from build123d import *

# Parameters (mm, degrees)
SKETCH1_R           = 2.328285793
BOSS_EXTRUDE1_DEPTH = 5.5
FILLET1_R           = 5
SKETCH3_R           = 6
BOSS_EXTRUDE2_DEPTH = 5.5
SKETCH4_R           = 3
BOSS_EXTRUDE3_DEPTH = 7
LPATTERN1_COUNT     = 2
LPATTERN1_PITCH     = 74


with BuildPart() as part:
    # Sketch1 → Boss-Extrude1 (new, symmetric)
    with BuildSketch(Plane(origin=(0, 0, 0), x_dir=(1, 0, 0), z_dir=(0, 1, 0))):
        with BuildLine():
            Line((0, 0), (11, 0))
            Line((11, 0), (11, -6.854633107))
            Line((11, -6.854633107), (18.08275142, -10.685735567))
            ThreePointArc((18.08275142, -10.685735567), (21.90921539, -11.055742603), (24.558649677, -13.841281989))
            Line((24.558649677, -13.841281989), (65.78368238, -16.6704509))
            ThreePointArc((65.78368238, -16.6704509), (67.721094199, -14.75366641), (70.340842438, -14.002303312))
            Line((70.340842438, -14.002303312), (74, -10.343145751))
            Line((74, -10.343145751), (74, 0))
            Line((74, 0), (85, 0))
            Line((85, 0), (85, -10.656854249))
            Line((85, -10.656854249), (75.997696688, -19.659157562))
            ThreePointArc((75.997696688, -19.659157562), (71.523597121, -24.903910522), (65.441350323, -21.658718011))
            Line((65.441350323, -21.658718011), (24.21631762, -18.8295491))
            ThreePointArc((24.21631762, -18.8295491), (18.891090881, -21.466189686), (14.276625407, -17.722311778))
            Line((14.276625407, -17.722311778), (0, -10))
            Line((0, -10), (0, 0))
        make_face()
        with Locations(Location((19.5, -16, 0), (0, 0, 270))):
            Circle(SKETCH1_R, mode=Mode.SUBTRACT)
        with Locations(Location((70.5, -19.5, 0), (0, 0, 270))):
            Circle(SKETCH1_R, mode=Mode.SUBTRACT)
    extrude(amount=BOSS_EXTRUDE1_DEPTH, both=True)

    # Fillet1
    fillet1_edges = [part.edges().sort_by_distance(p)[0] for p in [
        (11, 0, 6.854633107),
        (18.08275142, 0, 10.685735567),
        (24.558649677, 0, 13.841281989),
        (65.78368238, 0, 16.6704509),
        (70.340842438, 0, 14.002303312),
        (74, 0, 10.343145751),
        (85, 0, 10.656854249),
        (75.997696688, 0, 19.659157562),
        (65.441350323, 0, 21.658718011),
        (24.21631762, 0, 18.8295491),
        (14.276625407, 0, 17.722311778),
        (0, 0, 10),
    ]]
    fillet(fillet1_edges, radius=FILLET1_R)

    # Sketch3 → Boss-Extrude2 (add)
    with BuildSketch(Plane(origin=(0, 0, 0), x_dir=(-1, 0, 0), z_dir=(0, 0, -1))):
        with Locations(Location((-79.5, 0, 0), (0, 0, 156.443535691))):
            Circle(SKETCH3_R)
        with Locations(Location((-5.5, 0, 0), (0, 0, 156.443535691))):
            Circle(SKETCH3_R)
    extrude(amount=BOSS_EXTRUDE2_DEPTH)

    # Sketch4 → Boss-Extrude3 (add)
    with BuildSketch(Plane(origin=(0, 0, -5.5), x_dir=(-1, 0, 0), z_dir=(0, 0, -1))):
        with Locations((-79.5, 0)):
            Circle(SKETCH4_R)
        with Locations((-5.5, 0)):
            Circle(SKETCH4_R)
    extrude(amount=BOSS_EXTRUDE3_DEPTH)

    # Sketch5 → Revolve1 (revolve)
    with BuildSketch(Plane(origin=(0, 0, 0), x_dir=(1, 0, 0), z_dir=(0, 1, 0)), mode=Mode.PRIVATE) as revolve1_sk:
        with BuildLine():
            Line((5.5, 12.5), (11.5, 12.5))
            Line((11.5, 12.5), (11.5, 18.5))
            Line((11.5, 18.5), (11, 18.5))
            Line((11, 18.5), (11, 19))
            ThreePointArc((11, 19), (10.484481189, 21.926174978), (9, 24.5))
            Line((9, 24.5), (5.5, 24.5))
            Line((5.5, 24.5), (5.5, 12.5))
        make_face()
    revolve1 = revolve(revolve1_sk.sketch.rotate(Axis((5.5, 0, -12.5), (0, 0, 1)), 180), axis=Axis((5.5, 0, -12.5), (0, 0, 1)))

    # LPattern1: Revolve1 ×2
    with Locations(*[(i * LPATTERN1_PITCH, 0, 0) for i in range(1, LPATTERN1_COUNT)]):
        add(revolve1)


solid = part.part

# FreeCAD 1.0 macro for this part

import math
import FreeCAD as App
import Part
import Sketcher

V = App.Vector
Q = App.Units.Quantity


def edges_at(feature, points):
    """Names of the edges that pass closest to the given points."""
    edges = feature.Shape.Edges
    near = lambda p: min(range(len(edges)), key=lambda i: edges[i].distToShape(Part.Vertex(*p))[0])
    return sorted({f"Edge{near(p) + 1}" for p in points})

doc = App.newDocument("Part")
body = doc.addObject("PartDesign::Body", "Body")

sketch1 = doc.addObject("Sketcher::SketchObject", "Sketch")
body.addObject(sketch1)
sketch1.AttachmentSupport = (doc.XZ_Plane, [""])
sketch1.MapMode = "FlatFace"
sketch1.addGeometry([
    Part.LineSegment(V(11, 0, 0), V(0, 0, 0)),
    Part.LineSegment(V(0, 0, 0), V(0, 10, 0)),
    Part.LineSegment(V(0, 10, 0), V(14.276625, 17.722312, 0)),
    Part.ArcOfCircle(Part.Circle(V(19.5, 16, 0), V(0, 0, 1), 5.5), math.radians(30.961599), math.radians(161.750978)),
    Part.LineSegment(V(24.216318, 18.829549, 0), V(65.44135, 21.658718, 0)),
    Part.ArcOfCircle(Part.Circle(V(70.5, 19.5, 0), V(0, 0, 1), 5.5), math.radians(1.658242), math.radians(156.890216)),
    Part.LineSegment(V(75.997697, 19.659158, 0), V(85, 10.656854, 0)),
    Part.LineSegment(V(85, 10.656854, 0), V(85, 0, 0)),
    Part.LineSegment(V(85, 0, 0), V(74, 0, 0)),
    Part.LineSegment(V(74, 0, 0), V(74, 10.343146, 0)),
    Part.LineSegment(V(74, 10.343146, 0), V(70.340842, 14.002303, 0)),
    Part.ArcOfCircle(Part.Circle(V(70.5, 19.5, 0), V(0, 0, 1), 5.5), math.radians(-149.0384), math.radians(-91.658242)),
    Part.LineSegment(V(65.783682, 16.670451, 0), V(24.55865, 13.841282, 0)),
    Part.ArcOfCircle(Part.Circle(V(19.5, 16, 0), V(0, 0, 1), 5.5), math.radians(-104.932538), math.radians(-23.109784)),
    Part.LineSegment(V(18.082751, 10.685736, 0), V(11, 6.854633, 0)),
    Part.LineSegment(V(11, 6.854633, 0), V(11, 0, 0)),
    Part.Circle(V(70.5, 19.5, 0), V(0, 0, 1), 2.328286),
    Part.Circle(V(19.5, 16, 0), V(0, 0, 1), 2.328286),
], False)
sketch1.addConstraint([
    Sketcher.Constraint("Coincident", 0, 2, 1, 1),
    Sketcher.Constraint("Coincident", 1, 2, 2, 1),
    Sketcher.Constraint("Coincident", 2, 2, 3, 2),
    Sketcher.Constraint("Coincident", 3, 1, 4, 1),
    Sketcher.Constraint("Coincident", 4, 2, 5, 2),
    Sketcher.Constraint("Coincident", 5, 1, 6, 1),
    Sketcher.Constraint("Coincident", 6, 2, 7, 1),
    Sketcher.Constraint("Coincident", 7, 2, 8, 1),
    Sketcher.Constraint("Coincident", 8, 2, 9, 1),
    Sketcher.Constraint("Coincident", 9, 2, 10, 1),
    Sketcher.Constraint("Coincident", 10, 2, 11, 2),
    Sketcher.Constraint("Coincident", 11, 1, 12, 1),
    Sketcher.Constraint("Coincident", 12, 2, 13, 2),
    Sketcher.Constraint("Coincident", 13, 1, 14, 1),
    Sketcher.Constraint("Coincident", 14, 2, 15, 1),
    Sketcher.Constraint("Coincident", 15, 2, 0, 1),
    Sketcher.Constraint("Horizontal", 0),
    Sketcher.Constraint("Vertical", 1),
    Sketcher.Constraint("Vertical", 7),
    Sketcher.Constraint("Horizontal", 8),
    Sketcher.Constraint("Vertical", 9),
    Sketcher.Constraint("Vertical", 15),
    Sketcher.Constraint("Coincident", 0, 2, -1, 1),
    Sketcher.Constraint("Coincident", 11, 3, 5, 3),
    Sketcher.Constraint("Coincident", 13, 3, 3, 3),
    Sketcher.Constraint("Coincident", 16, 3, 5, 3),
    Sketcher.Constraint("Coincident", 17, 3, 3, 3),
    Sketcher.Constraint("Equal", 3, 5),
    Sketcher.Constraint("Equal", 5, 11),
    Sketcher.Constraint("Equal", 11, 13),
    Sketcher.Constraint("Equal", 16, 17),
    Sketcher.Constraint("PointOnObject", 7, 2, -1),
    Sketcher.Constraint("Parallel", 6, 10),
    Sketcher.Constraint("Parallel", 4, 12),
    Sketcher.Constraint("Parallel", 2, 14),
    Sketcher.Constraint("Equal", 0, 8),
    Sketcher.Constraint("Equal", 4, 12),
    Sketcher.Constraint("Radius", 3, Q("5.5 mm")),
    Sketcher.Constraint("DistanceX", 0, 2, 0, 1, Q("11 mm")),
    Sketcher.Constraint("DistanceY", 1, 1, 1, 2, Q("10 mm")),
    Sketcher.Constraint("Angle", 6, Q("-45 deg")),
    Sketcher.Constraint("DistanceY", -1, 1, 3, 3, Q("16 mm")),
    Sketcher.Constraint("DistanceX", -1, 1, 6, 2, Q("85 mm")),
    Sketcher.Constraint("DistanceX", 3, 3, 5, 3, Q("51 mm")),
    Sketcher.Constraint("DistanceX", -1, 1, 3, 3, Q("19.5 mm")),
    Sketcher.Constraint("DistanceY", -1, 1, 5, 3, Q("19.5 mm")),
    Sketcher.Constraint("Diameter", 16, Q("4.656572 mm")),
    Sketcher.Constraint("DistanceX", 13, 1, 12, 2, Q("6.475898 mm")),
    Sketcher.Constraint("Distance", 2, Q("16.231332 mm")),
    Sketcher.Constraint("Distance", 6, Q("12.731179 mm")),
    Sketcher.Constraint("Distance", 10, Q("5.17483 mm")),
    Sketcher.Constraint("DistanceY", 15, 2, 15, 1, Q("6.854633 mm")),
    Sketcher.Constraint("DistanceY", -1, 1, 3, 1, Q("18.829549 mm")),
])
pad1 = doc.addObject("PartDesign::Pad", "Pad")
body.addObject(pad1)
pad1.Profile = sketch1
pad1.Length = 11
pad1.Midplane = True
doc.recompute()

fillet = doc.addObject("PartDesign::Fillet", "Fillet")
body.addObject(fillet)
fillet.Base = (pad1, edges_at(pad1, [
    (11, 0, 6.855),
    (18.083, 0, 10.686),
    (24.559, 0, 13.841),
    (65.784, 0, 16.67),
    (70.341, 0, 14.002),
    (74, 0, 10.343),
    (85, 0, 10.657),
    (75.998, 0, 19.659),
    (65.441, 0, 21.659),
    (24.216, 0, 18.83),
    (14.277, 0, 17.722),
    (0, 0, 10),
]))
fillet.Radius = 5

sketch2 = doc.addObject("Sketcher::SketchObject", "Sketch001")
body.addObject(sketch2)
sketch2.AttachmentSupport = (doc.XY_Plane, [""])
sketch2.MapMode = "FlatFace"
sketch2.addGeometry([
    Part.Circle(V(79.5, 0, 0), V(0, 0, 1), 6),
    Part.Circle(V(5.5, 0, 0), V(0, 0, 1), 6),
], False)
sketch2.addConstraint([
    Sketcher.Constraint("Equal", 0, 1),
    Sketcher.Constraint("PointOnObject", 0, 3, -1),
    Sketcher.Constraint("PointOnObject", 1, 3, -1),
    Sketcher.Constraint("Diameter", 0, Q("12 mm")),
    Sketcher.Constraint("DistanceX", 1, 3, 0, 3, Q("74 mm")),
    Sketcher.Constraint("DistanceX", -1, 1, 0, 3, Q("79.5 mm")),
])
pad2 = doc.addObject("PartDesign::Pad", "Pad001")
body.addObject(pad2)
pad2.Profile = sketch2
pad2.Length = 5.5
pad2.Reversed = True

sketch3 = doc.addObject("Sketcher::SketchObject", "Sketch002")
body.addObject(sketch3)
sketch3.AttachmentSupport = (doc.XY_Plane, [""])
sketch3.MapMode = "FlatFace"
sketch3.AttachmentOffset = App.Placement(V(0, 0, -5.5), App.Rotation())
sketch3.addGeometry([
    Part.Circle(V(79.5, 0, 0), V(0, 0, 1), 3),
    Part.Circle(V(5.5, 0, 0), V(0, 0, 1), 3),
], False)
sketch3.addConstraint([
    Sketcher.Constraint("Equal", 0, 1),
    Sketcher.Constraint("PointOnObject", 0, 3, -1),
    Sketcher.Constraint("PointOnObject", 1, 3, -1),
    Sketcher.Constraint("Diameter", 0, Q("6 mm")),
    Sketcher.Constraint("DistanceX", 1, 3, 0, 3, Q("74 mm")),
    Sketcher.Constraint("DistanceX", -1, 1, 0, 3, Q("79.5 mm")),
])
pad3 = doc.addObject("PartDesign::Pad", "Pad002")
body.addObject(pad3)
pad3.Profile = sketch3
pad3.Length = 7
pad3.Reversed = True

sketch4 = doc.addObject("Sketcher::SketchObject", "Sketch003")
body.addObject(sketch4)
sketch4.AttachmentSupport = (doc.XZ_Plane, [""])
sketch4.MapMode = "FlatFace"
sketch4.addGeometry([
    Part.LineSegment(V(5.5, -12.5, 0), V(11.5, -12.5, 0)),
    Part.LineSegment(V(11.5, -12.5, 0), V(11.5, -18.5, 0)),
    Part.LineSegment(V(11.5, -18.5, 0), V(11, -18.5, 0)),
    Part.LineSegment(V(11, -18.5, 0), V(11, -19, 0)),
    Part.ArcOfCircle(Part.Circle(V(2.4375, -19, 0), V(0, 0, 1), 8.5625), math.radians(-39.966213), math.radians(0)),
    Part.LineSegment(V(9, -24.5, 0), V(5.5, -24.5, 0)),
    Part.LineSegment(V(5.5, -24.5, 0), V(5.5, -12.5, 0)),
], False)
sketch4.addGeometry(Part.LineSegment(V(5.5, -24.5, 0), V(5.5, -12.5, 0)), True)
sketch4.addConstraint([
    Sketcher.Constraint("Coincident", 0, 2, 1, 1),
    Sketcher.Constraint("Coincident", 1, 2, 2, 1),
    Sketcher.Constraint("Coincident", 2, 2, 3, 1),
    Sketcher.Constraint("Tangent", 3, 2, 4, 2),
    Sketcher.Constraint("Coincident", 4, 1, 5, 1),
    Sketcher.Constraint("Coincident", 5, 2, 6, 1),
    Sketcher.Constraint("Coincident", 6, 2, 0, 1),
    Sketcher.Constraint("Horizontal", 0),
    Sketcher.Constraint("Vertical", 1),
    Sketcher.Constraint("Horizontal", 2),
    Sketcher.Constraint("Vertical", 3),
    Sketcher.Constraint("Horizontal", 5),
    Sketcher.Constraint("Vertical", 6),
    Sketcher.Constraint("Vertical", 7),
    Sketcher.Constraint("Coincident", 7, 1, 5, 2),
    Sketcher.Constraint("Horizontal", 0, 2, 7, 2),
    Sketcher.Constraint("Equal", 0, 1),
    Sketcher.Constraint("Equal", 2, 3),
    Sketcher.Constraint("DistanceX", 0, 1, 0, 2, Q("6 mm")),
    Sketcher.Constraint("DistanceY", 6, 1, 6, 2, Q("12 mm")),
    Sketcher.Constraint("DistanceX", 2, 2, 2, 1, Q("0.5 mm")),
    Sketcher.Constraint("DistanceX", 5, 2, 5, 1, Q("3.5 mm")),
    Sketcher.Constraint("DistanceY", 4, 3, -1, 1, Q("19 mm")),
    Sketcher.Constraint("DistanceX", -1, 1, 2, 2, Q("11 mm")),
])
revolution = doc.addObject("PartDesign::Revolution", "Revolution")
body.addObject(revolution)
revolution.Profile = sketch4
revolution.ReferenceAxis = (sketch4, ["Axis0"])
revolution.Angle = 360
doc.recompute()

linearpattern = doc.addObject("PartDesign::LinearPattern", "LinearPattern")
body.addObject(linearpattern)
linearpattern.Originals = [revolution]
linearpattern.Direction = (doc.X_Axis, [""])
linearpattern.Mode = "offset"
linearpattern.Offset = 74
linearpattern.Occurrences = 2
body.Tip = linearpattern

doc.recompute()
